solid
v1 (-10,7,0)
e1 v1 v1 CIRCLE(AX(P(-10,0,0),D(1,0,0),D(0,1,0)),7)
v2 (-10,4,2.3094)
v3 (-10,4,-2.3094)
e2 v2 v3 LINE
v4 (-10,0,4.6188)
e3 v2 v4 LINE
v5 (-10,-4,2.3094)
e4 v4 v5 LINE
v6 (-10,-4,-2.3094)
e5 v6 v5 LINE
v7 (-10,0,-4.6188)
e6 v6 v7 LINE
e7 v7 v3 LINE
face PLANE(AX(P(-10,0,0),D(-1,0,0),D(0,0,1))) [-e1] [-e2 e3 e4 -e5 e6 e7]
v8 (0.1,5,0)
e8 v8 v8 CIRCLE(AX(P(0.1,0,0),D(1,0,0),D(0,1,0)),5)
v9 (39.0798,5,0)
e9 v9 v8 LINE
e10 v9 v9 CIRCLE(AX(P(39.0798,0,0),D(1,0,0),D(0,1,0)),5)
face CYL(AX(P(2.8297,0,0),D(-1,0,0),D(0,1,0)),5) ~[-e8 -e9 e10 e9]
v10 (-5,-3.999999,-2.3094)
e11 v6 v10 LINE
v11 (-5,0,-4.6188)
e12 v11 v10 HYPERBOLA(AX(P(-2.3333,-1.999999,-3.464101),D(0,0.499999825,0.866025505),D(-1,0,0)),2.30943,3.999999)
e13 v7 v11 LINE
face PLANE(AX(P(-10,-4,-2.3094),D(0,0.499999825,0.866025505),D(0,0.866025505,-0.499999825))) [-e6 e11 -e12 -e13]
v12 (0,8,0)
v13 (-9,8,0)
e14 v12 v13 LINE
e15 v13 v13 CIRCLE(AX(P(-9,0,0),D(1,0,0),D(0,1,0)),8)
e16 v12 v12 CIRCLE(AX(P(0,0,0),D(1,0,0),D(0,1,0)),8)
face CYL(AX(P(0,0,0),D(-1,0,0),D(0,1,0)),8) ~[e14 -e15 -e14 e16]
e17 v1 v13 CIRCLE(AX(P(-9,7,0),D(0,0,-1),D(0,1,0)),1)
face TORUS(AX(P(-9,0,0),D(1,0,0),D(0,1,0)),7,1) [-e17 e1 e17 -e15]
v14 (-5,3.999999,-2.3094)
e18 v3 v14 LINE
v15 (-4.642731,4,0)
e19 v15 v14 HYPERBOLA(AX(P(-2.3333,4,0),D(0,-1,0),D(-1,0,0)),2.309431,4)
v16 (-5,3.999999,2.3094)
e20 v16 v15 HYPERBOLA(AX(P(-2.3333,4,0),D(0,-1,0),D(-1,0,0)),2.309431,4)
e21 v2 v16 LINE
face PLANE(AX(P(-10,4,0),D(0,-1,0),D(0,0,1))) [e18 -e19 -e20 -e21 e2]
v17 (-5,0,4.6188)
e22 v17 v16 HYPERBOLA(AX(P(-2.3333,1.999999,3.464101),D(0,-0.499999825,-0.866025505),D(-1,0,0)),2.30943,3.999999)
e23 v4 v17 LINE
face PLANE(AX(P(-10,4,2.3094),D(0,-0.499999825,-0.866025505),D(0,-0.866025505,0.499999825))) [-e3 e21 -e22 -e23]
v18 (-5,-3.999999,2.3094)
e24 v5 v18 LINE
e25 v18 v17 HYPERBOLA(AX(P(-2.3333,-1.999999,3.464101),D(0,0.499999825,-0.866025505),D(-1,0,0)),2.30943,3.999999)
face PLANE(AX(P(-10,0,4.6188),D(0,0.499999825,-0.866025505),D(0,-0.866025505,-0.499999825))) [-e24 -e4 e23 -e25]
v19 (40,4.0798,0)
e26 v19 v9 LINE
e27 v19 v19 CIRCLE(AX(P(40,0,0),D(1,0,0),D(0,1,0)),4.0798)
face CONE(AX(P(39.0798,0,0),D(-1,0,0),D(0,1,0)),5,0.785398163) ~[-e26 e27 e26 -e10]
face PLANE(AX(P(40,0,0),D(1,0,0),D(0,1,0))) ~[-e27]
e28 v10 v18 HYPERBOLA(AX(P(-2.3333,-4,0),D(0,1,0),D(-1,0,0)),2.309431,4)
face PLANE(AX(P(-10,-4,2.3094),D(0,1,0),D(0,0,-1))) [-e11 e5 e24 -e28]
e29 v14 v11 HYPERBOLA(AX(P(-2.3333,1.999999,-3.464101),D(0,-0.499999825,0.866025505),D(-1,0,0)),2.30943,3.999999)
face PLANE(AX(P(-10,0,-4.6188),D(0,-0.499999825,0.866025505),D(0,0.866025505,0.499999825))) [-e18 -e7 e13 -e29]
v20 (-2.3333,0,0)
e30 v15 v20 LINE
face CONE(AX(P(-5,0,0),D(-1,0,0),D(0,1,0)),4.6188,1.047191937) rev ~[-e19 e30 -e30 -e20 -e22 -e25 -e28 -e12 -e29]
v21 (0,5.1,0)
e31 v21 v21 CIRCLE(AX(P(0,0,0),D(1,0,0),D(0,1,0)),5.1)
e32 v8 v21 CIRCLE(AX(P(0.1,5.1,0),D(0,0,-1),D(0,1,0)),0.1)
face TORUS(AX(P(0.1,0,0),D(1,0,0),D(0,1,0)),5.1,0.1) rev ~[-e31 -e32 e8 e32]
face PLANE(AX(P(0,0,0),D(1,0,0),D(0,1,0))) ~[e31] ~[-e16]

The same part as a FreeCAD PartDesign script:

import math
import FreeCAD as App
import Part
import Sketcher
Q = App.Units.Quantity


def edges_at(feature, points):
    """Names of the edges that pass closest to the given points."""
    edges = feature.Shape.Edges
    near = lambda p: min(range(len(edges)), key=lambda i: edges[i].distToShape(Part.Vertex(*p))[0])
    return sorted({f"Edge{near(p) + 1}" for p in points})


def add_polygon(sketch, points):
    """Adds a closed chain of lines whose ends are joined by coincident constraints."""
    first, n = sketch.GeometryCount, len(points)
    for a, b in zip(points, points[1:] + points[:1]):
        sketch.addGeometry(Part.LineSegment(App.Vector(*a, 0), App.Vector(*b, 0)), False)
    for i in range(n):
        sketch.addConstraint(Sketcher.Constraint("Coincident", first + i, 2, first + (i + 1) % n, 1))

doc = App.newDocument("Part")
body = doc.addObject("PartDesign::Body", "Body")

# Sketch on XY plane
sketch1 = body.newObject("Sketcher::SketchObject", "Sketch")
sketch1.AttachmentSupport = (doc.getObject("XY_Plane"), [""])
sketch1.MapMode = "FlatFace"
add_polygon(sketch1, [(-5, 4.6188), (-2.3333, 0), (40, 0), (40, 5), (0, 5), (0, 8), (-10, 8), (-10, 4.6188)])  # lines 0-7
sketch1.addConstraint([
    Sketcher.Constraint("Horizontal", 1),
    Sketcher.Constraint("Vertical", 2),
    Sketcher.Constraint("Horizontal", 3),
    Sketcher.Constraint("Vertical", 4),
    Sketcher.Constraint("Horizontal", 5),
    Sketcher.Constraint("Vertical", 6),
    Sketcher.Constraint("Horizontal", 7),
    Sketcher.Constraint("PointOnObject", 0, 2, -1),
    Sketcher.Constraint("PointOnObject", 3, 2, -2),
    Sketcher.Constraint("Equal", 7, 2),
    Sketcher.Constraint("DistanceX", 3, 2, 3, 1, Q("40 mm")),
    Sketcher.Constraint("DistanceX", 5, 2, 5, 1, Q("10 mm")),
    Sketcher.Constraint("DistanceX", 7, 1, 7, 2, Q("5 mm")),
    Sketcher.Constraint("Angle", 0, Q("-59.9997 deg")),
    Sketcher.Constraint("DistanceY", 4, 1, 4, 2, Q("3 mm")),
    Sketcher.Constraint("DistanceX", 1, 1, 1, 2, Q("42.3333 mm")),
])
revolution = body.newObject("PartDesign::Revolution", "Revolution")
revolution.Profile = sketch1
revolution.ReferenceAxis = (sketch1, ["H_Axis"])
revolution.Angle = 360

# Sketch on YZ plane
sketch2 = body.newObject("Sketcher::SketchObject", "Sketch001")
sketch2.AttachmentSupport = (doc.getObject("YZ_Plane"), [""])
sketch2.MapMode = "FlatFace"
sketch2.AttachmentOffset = App.Placement(App.Vector(0, 0, -10), App.Rotation())
sketch2.addGeometry([
    Part.LineSegment(App.Vector(4, 2.3094, 0), App.Vector(0, 4.6188, 0)),  # 0
    Part.ArcOfCircle(Part.Circle(App.Vector(0, 0, 0), App.Vector(0, 0, 1), 4.6188), math.radians(29.999988), math.radians(90)),  # 1
    Part.ArcOfCircle(Part.Circle(App.Vector(0, 0, 0), App.Vector(0, 0, 1), 4.6188), math.radians(90), math.radians(150.000012)),  # 2
    Part.LineSegment(App.Vector(0, 4.6188, 0), App.Vector(-4, 2.3094, 0)),  # 3
    Part.ArcOfCircle(Part.Circle(App.Vector(0, 0, 0), App.Vector(0, 0, 1), 4.6188), math.radians(-29.999988), math.radians(29.999988)),  # 4
    Part.LineSegment(App.Vector(4, 2.3094, 0), App.Vector(4, -2.3094, 0)),  # 5
    Part.LineSegment(App.Vector(-4, 2.3094, 0), App.Vector(-4, -2.3094, 0)),  # 6
    Part.ArcOfCircle(Part.Circle(App.Vector(0, 0, 0), App.Vector(0, 0, 1), 4.6188), math.radians(150.000012), math.radians(209.999988)),  # 7
    Part.LineSegment(App.Vector(-4, -2.3094, 0), App.Vector(0, -4.6188, 0)),  # 8
    Part.ArcOfCircle(Part.Circle(App.Vector(0, 0, 0), App.Vector(0, 0, 1), 4.6188), math.radians(-150.000012), math.radians(-90)),  # 9
    Part.ArcOfCircle(Part.Circle(App.Vector(0, 0, 0), App.Vector(0, 0, 1), 4.6188), math.radians(-90), math.radians(-29.999988)),  # 10
    Part.LineSegment(App.Vector(0, -4.6188, 0), App.Vector(4, -2.3094, 0)),  # 11
], False)
sketch2.addConstraint([
    Sketcher.Constraint("Coincident", 0, 1, 1, 1),
    Sketcher.Constraint("Coincident", 1, 2, 0, 2),
    Sketcher.Constraint("Coincident", 2, 1, 3, 1),
    Sketcher.Constraint("Coincident", 3, 2, 2, 2),
    Sketcher.Constraint("Coincident", 4, 1, 5, 2),
    Sketcher.Constraint("Coincident", 5, 1, 4, 2),
    Sketcher.Constraint("Coincident", 6, 1, 7, 1),
    Sketcher.Constraint("Coincident", 7, 2, 6, 2),
    Sketcher.Constraint("Coincident", 8, 1, 9, 1),
    Sketcher.Constraint("Coincident", 9, 2, 8, 2),
    Sketcher.Constraint("Coincident", 10, 1, 11, 1),
    Sketcher.Constraint("Coincident", 11, 2, 10, 2),
    Sketcher.Constraint("Vertical", 5),
    Sketcher.Constraint("Vertical", 6),
    Sketcher.Constraint("Coincident", 1, 3, -1, 1),
    Sketcher.Constraint("Coincident", 2, 3, -1, 1),
    Sketcher.Constraint("Coincident", 4, 3, -1, 1),
    Sketcher.Constraint("Coincident", 7, 3, -1, 1),
    Sketcher.Constraint("Coincident", 9, 3, -1, 1),
    Sketcher.Constraint("Coincident", 10, 3, -1, 1),
    Sketcher.Constraint("Coincident", 2, 1, 1, 2),
    Sketcher.Constraint("Coincident", 5, 1, 0, 1),
    Sketcher.Constraint("Coincident", 6, 1, 3, 2),
    Sketcher.Constraint("Coincident", 8, 1, 7, 2),
    Sketcher.Constraint("Coincident", 10, 1, 9, 2),
    Sketcher.Constraint("PointOnObject", 1, 2, -2),
    Sketcher.Constraint("PointOnObject", 9, 2, -2),
    Sketcher.Constraint("Parallel", 0, 8),
    Sketcher.Constraint("Parallel", 3, 11),
    Sketcher.Constraint("Angle", 0, Q("150 deg")),
    Sketcher.Constraint("DistanceX", -1, 1, 0, 1, Q("4 mm")),
])
pad1 = body.newObject("PartDesign::Pad", "Pad")
pad1.Profile = sketch2
pad1.Type = "UpToFirst"
doc.recompute()

fillet = body.newObject("PartDesign::Fillet", "Fillet")
fillet.Base = (pad1, edges_at(pad1, [(-10, -8, 0)]))
fillet.Radius = 1
doc.recompute()

chamfer = body.newObject("PartDesign::Chamfer", "Chamfer")
chamfer.Base = (fillet, edges_at(fillet, [(40, -5, 0)]))
chamfer.ChamferType = "Two distances"
chamfer.Size = 0.9202
chamfer.Size2 = 0.9202
doc.recompute()

fillet2 = body.newObject("PartDesign::Fillet", "Fillet001")
fillet2.Base = (chamfer, edges_at(chamfer, [(0, -5, 0)]))
fillet2.Radius = 0.1

doc.recompute()
